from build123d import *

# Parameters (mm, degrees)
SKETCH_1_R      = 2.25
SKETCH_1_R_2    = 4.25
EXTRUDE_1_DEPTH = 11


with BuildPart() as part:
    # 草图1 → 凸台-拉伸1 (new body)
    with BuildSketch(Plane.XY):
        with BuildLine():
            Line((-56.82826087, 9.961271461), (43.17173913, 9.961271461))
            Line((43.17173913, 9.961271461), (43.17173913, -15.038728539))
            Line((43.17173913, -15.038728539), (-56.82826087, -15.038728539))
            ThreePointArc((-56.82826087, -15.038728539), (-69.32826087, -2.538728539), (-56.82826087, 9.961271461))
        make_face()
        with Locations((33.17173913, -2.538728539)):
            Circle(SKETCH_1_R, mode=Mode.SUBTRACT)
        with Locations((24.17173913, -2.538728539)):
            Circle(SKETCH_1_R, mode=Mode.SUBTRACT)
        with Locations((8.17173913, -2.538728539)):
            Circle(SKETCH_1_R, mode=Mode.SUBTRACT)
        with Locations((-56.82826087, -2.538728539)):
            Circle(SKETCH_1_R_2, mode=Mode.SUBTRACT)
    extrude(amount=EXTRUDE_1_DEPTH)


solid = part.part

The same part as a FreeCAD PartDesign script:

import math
import FreeCAD as App
import Part
import Sketcher
from FreeCAD import Vector
Q = App.Units.Quantity

doc = App.newDocument("Part")
body = doc.addObject("PartDesign::Body", "Body")

# Sketch on XY plane
sketch1 = doc.addObject("Sketcher::SketchObject", "Sketch")
body.addObject(sketch1)
sketch1.AttachmentSupport = (doc.XY_Plane, [""])
sketch1.MapMode = "FlatFace"
sketch1.addGeometry(Part.LineSegment(Vector(43.2, 10, 0), Vector(-56.8, 10, 0)), False)
sketch1.addGeometry(Part.ArcOfCircle(Part.Circle(Vector(-56.8, -2.5, 0), Vector(0, 0, 1), 12.5), math.radians(90), math.radians(270)), False)
sketch1.addGeometry(Part.LineSegment(Vector(-56.8, -15, 0), Vector(43.2, -15, 0)), False)
sketch1.addGeometry(Part.LineSegment(Vector(43.2, -15, 0), Vector(43.2, 10, 0)), False)
sketch1.addGeometry(Part.Circle(Vector(33.2, -2.5, 0), Vector(0, 0, 1), 2.2), False)
sketch1.addGeometry(Part.Circle(Vector(24.2, -2.5, 0), Vector(0, 0, 1), 2.2), False)
sketch1.addGeometry(Part.Circle(Vector(8.2, -2.5, 0), Vector(0, 0, 1), 2.2), False)
sketch1.addGeometry(Part.Circle(Vector(-56.8, -2.5, 0), Vector(0, 0, 1), 4.2), False)
sketch1.addConstraint(Sketcher.Constraint("Tangent", 0, 2, 1, 1))
sketch1.addConstraint(Sketcher.Constraint("Tangent", 1, 2, 2, 1))
sketch1.addConstraint(Sketcher.Constraint("Coincident", 2, 2, 3, 1))
sketch1.addConstraint(Sketcher.Constraint("Coincident", 3, 2, 0, 1))
sketch1.addConstraint(Sketcher.Constraint("Horizontal", 0))
sketch1.addConstraint(Sketcher.Constraint("Horizontal", 2))
sketch1.addConstraint(Sketcher.Constraint("Vertical", 3))
sketch1.addConstraint(Sketcher.Constraint("Coincident", 7, 3, 1, 3))
sketch1.addConstraint(Sketcher.Constraint("Equal", 4, 5))
sketch1.addConstraint(Sketcher.Constraint("Equal", 5, 6))
sketch1.addConstraint(Sketcher.Constraint("Horizontal", 1, 3, 4, 3))
sketch1.addConstraint(Sketcher.Constraint("Horizontal", 4, 3, 5, 3))
sketch1.addConstraint(Sketcher.Constraint("Horizontal", 5, 3, 6, 3))
sketch1.addConstraint(Sketcher.Constraint("Diameter", 4, Q("4.5 mm")))
sketch1.addConstraint(Sketcher.Constraint("Diameter", 7, Q("8.5 mm")))
sketch1.addConstraint(Sketcher.Constraint("Radius", 1, Q("12.5 mm")))
sketch1.addConstraint(Sketcher.Constraint("DistanceX", 0, 2, 0, 1, Q("100 mm")))
sketch1.addConstraint(Sketcher.Constraint("DistanceX", 1, 3, 4, 3, Q("90 mm")))
sketch1.addConstraint(Sketcher.Constraint("DistanceX", 5, 3, 4, 3, Q("9 mm")))
sketch1.addConstraint(Sketcher.Constraint("DistanceX", 6, 3, 5, 3, Q("16 mm")))
sketch1.addConstraint(Sketcher.Constraint("DistanceX", 1, 3, -1, 1, Q("56.828261 mm")))
sketch1.addConstraint(Sketcher.Constraint("DistanceY", 1, 3, -1, 1, Q("2.538729 mm")))
pad1 = doc.addObject("PartDesign::Pad", "Pad")
body.addObject(pad1)
pad1.Profile = sketch1
pad1.Length = 11

doc.recompute()
